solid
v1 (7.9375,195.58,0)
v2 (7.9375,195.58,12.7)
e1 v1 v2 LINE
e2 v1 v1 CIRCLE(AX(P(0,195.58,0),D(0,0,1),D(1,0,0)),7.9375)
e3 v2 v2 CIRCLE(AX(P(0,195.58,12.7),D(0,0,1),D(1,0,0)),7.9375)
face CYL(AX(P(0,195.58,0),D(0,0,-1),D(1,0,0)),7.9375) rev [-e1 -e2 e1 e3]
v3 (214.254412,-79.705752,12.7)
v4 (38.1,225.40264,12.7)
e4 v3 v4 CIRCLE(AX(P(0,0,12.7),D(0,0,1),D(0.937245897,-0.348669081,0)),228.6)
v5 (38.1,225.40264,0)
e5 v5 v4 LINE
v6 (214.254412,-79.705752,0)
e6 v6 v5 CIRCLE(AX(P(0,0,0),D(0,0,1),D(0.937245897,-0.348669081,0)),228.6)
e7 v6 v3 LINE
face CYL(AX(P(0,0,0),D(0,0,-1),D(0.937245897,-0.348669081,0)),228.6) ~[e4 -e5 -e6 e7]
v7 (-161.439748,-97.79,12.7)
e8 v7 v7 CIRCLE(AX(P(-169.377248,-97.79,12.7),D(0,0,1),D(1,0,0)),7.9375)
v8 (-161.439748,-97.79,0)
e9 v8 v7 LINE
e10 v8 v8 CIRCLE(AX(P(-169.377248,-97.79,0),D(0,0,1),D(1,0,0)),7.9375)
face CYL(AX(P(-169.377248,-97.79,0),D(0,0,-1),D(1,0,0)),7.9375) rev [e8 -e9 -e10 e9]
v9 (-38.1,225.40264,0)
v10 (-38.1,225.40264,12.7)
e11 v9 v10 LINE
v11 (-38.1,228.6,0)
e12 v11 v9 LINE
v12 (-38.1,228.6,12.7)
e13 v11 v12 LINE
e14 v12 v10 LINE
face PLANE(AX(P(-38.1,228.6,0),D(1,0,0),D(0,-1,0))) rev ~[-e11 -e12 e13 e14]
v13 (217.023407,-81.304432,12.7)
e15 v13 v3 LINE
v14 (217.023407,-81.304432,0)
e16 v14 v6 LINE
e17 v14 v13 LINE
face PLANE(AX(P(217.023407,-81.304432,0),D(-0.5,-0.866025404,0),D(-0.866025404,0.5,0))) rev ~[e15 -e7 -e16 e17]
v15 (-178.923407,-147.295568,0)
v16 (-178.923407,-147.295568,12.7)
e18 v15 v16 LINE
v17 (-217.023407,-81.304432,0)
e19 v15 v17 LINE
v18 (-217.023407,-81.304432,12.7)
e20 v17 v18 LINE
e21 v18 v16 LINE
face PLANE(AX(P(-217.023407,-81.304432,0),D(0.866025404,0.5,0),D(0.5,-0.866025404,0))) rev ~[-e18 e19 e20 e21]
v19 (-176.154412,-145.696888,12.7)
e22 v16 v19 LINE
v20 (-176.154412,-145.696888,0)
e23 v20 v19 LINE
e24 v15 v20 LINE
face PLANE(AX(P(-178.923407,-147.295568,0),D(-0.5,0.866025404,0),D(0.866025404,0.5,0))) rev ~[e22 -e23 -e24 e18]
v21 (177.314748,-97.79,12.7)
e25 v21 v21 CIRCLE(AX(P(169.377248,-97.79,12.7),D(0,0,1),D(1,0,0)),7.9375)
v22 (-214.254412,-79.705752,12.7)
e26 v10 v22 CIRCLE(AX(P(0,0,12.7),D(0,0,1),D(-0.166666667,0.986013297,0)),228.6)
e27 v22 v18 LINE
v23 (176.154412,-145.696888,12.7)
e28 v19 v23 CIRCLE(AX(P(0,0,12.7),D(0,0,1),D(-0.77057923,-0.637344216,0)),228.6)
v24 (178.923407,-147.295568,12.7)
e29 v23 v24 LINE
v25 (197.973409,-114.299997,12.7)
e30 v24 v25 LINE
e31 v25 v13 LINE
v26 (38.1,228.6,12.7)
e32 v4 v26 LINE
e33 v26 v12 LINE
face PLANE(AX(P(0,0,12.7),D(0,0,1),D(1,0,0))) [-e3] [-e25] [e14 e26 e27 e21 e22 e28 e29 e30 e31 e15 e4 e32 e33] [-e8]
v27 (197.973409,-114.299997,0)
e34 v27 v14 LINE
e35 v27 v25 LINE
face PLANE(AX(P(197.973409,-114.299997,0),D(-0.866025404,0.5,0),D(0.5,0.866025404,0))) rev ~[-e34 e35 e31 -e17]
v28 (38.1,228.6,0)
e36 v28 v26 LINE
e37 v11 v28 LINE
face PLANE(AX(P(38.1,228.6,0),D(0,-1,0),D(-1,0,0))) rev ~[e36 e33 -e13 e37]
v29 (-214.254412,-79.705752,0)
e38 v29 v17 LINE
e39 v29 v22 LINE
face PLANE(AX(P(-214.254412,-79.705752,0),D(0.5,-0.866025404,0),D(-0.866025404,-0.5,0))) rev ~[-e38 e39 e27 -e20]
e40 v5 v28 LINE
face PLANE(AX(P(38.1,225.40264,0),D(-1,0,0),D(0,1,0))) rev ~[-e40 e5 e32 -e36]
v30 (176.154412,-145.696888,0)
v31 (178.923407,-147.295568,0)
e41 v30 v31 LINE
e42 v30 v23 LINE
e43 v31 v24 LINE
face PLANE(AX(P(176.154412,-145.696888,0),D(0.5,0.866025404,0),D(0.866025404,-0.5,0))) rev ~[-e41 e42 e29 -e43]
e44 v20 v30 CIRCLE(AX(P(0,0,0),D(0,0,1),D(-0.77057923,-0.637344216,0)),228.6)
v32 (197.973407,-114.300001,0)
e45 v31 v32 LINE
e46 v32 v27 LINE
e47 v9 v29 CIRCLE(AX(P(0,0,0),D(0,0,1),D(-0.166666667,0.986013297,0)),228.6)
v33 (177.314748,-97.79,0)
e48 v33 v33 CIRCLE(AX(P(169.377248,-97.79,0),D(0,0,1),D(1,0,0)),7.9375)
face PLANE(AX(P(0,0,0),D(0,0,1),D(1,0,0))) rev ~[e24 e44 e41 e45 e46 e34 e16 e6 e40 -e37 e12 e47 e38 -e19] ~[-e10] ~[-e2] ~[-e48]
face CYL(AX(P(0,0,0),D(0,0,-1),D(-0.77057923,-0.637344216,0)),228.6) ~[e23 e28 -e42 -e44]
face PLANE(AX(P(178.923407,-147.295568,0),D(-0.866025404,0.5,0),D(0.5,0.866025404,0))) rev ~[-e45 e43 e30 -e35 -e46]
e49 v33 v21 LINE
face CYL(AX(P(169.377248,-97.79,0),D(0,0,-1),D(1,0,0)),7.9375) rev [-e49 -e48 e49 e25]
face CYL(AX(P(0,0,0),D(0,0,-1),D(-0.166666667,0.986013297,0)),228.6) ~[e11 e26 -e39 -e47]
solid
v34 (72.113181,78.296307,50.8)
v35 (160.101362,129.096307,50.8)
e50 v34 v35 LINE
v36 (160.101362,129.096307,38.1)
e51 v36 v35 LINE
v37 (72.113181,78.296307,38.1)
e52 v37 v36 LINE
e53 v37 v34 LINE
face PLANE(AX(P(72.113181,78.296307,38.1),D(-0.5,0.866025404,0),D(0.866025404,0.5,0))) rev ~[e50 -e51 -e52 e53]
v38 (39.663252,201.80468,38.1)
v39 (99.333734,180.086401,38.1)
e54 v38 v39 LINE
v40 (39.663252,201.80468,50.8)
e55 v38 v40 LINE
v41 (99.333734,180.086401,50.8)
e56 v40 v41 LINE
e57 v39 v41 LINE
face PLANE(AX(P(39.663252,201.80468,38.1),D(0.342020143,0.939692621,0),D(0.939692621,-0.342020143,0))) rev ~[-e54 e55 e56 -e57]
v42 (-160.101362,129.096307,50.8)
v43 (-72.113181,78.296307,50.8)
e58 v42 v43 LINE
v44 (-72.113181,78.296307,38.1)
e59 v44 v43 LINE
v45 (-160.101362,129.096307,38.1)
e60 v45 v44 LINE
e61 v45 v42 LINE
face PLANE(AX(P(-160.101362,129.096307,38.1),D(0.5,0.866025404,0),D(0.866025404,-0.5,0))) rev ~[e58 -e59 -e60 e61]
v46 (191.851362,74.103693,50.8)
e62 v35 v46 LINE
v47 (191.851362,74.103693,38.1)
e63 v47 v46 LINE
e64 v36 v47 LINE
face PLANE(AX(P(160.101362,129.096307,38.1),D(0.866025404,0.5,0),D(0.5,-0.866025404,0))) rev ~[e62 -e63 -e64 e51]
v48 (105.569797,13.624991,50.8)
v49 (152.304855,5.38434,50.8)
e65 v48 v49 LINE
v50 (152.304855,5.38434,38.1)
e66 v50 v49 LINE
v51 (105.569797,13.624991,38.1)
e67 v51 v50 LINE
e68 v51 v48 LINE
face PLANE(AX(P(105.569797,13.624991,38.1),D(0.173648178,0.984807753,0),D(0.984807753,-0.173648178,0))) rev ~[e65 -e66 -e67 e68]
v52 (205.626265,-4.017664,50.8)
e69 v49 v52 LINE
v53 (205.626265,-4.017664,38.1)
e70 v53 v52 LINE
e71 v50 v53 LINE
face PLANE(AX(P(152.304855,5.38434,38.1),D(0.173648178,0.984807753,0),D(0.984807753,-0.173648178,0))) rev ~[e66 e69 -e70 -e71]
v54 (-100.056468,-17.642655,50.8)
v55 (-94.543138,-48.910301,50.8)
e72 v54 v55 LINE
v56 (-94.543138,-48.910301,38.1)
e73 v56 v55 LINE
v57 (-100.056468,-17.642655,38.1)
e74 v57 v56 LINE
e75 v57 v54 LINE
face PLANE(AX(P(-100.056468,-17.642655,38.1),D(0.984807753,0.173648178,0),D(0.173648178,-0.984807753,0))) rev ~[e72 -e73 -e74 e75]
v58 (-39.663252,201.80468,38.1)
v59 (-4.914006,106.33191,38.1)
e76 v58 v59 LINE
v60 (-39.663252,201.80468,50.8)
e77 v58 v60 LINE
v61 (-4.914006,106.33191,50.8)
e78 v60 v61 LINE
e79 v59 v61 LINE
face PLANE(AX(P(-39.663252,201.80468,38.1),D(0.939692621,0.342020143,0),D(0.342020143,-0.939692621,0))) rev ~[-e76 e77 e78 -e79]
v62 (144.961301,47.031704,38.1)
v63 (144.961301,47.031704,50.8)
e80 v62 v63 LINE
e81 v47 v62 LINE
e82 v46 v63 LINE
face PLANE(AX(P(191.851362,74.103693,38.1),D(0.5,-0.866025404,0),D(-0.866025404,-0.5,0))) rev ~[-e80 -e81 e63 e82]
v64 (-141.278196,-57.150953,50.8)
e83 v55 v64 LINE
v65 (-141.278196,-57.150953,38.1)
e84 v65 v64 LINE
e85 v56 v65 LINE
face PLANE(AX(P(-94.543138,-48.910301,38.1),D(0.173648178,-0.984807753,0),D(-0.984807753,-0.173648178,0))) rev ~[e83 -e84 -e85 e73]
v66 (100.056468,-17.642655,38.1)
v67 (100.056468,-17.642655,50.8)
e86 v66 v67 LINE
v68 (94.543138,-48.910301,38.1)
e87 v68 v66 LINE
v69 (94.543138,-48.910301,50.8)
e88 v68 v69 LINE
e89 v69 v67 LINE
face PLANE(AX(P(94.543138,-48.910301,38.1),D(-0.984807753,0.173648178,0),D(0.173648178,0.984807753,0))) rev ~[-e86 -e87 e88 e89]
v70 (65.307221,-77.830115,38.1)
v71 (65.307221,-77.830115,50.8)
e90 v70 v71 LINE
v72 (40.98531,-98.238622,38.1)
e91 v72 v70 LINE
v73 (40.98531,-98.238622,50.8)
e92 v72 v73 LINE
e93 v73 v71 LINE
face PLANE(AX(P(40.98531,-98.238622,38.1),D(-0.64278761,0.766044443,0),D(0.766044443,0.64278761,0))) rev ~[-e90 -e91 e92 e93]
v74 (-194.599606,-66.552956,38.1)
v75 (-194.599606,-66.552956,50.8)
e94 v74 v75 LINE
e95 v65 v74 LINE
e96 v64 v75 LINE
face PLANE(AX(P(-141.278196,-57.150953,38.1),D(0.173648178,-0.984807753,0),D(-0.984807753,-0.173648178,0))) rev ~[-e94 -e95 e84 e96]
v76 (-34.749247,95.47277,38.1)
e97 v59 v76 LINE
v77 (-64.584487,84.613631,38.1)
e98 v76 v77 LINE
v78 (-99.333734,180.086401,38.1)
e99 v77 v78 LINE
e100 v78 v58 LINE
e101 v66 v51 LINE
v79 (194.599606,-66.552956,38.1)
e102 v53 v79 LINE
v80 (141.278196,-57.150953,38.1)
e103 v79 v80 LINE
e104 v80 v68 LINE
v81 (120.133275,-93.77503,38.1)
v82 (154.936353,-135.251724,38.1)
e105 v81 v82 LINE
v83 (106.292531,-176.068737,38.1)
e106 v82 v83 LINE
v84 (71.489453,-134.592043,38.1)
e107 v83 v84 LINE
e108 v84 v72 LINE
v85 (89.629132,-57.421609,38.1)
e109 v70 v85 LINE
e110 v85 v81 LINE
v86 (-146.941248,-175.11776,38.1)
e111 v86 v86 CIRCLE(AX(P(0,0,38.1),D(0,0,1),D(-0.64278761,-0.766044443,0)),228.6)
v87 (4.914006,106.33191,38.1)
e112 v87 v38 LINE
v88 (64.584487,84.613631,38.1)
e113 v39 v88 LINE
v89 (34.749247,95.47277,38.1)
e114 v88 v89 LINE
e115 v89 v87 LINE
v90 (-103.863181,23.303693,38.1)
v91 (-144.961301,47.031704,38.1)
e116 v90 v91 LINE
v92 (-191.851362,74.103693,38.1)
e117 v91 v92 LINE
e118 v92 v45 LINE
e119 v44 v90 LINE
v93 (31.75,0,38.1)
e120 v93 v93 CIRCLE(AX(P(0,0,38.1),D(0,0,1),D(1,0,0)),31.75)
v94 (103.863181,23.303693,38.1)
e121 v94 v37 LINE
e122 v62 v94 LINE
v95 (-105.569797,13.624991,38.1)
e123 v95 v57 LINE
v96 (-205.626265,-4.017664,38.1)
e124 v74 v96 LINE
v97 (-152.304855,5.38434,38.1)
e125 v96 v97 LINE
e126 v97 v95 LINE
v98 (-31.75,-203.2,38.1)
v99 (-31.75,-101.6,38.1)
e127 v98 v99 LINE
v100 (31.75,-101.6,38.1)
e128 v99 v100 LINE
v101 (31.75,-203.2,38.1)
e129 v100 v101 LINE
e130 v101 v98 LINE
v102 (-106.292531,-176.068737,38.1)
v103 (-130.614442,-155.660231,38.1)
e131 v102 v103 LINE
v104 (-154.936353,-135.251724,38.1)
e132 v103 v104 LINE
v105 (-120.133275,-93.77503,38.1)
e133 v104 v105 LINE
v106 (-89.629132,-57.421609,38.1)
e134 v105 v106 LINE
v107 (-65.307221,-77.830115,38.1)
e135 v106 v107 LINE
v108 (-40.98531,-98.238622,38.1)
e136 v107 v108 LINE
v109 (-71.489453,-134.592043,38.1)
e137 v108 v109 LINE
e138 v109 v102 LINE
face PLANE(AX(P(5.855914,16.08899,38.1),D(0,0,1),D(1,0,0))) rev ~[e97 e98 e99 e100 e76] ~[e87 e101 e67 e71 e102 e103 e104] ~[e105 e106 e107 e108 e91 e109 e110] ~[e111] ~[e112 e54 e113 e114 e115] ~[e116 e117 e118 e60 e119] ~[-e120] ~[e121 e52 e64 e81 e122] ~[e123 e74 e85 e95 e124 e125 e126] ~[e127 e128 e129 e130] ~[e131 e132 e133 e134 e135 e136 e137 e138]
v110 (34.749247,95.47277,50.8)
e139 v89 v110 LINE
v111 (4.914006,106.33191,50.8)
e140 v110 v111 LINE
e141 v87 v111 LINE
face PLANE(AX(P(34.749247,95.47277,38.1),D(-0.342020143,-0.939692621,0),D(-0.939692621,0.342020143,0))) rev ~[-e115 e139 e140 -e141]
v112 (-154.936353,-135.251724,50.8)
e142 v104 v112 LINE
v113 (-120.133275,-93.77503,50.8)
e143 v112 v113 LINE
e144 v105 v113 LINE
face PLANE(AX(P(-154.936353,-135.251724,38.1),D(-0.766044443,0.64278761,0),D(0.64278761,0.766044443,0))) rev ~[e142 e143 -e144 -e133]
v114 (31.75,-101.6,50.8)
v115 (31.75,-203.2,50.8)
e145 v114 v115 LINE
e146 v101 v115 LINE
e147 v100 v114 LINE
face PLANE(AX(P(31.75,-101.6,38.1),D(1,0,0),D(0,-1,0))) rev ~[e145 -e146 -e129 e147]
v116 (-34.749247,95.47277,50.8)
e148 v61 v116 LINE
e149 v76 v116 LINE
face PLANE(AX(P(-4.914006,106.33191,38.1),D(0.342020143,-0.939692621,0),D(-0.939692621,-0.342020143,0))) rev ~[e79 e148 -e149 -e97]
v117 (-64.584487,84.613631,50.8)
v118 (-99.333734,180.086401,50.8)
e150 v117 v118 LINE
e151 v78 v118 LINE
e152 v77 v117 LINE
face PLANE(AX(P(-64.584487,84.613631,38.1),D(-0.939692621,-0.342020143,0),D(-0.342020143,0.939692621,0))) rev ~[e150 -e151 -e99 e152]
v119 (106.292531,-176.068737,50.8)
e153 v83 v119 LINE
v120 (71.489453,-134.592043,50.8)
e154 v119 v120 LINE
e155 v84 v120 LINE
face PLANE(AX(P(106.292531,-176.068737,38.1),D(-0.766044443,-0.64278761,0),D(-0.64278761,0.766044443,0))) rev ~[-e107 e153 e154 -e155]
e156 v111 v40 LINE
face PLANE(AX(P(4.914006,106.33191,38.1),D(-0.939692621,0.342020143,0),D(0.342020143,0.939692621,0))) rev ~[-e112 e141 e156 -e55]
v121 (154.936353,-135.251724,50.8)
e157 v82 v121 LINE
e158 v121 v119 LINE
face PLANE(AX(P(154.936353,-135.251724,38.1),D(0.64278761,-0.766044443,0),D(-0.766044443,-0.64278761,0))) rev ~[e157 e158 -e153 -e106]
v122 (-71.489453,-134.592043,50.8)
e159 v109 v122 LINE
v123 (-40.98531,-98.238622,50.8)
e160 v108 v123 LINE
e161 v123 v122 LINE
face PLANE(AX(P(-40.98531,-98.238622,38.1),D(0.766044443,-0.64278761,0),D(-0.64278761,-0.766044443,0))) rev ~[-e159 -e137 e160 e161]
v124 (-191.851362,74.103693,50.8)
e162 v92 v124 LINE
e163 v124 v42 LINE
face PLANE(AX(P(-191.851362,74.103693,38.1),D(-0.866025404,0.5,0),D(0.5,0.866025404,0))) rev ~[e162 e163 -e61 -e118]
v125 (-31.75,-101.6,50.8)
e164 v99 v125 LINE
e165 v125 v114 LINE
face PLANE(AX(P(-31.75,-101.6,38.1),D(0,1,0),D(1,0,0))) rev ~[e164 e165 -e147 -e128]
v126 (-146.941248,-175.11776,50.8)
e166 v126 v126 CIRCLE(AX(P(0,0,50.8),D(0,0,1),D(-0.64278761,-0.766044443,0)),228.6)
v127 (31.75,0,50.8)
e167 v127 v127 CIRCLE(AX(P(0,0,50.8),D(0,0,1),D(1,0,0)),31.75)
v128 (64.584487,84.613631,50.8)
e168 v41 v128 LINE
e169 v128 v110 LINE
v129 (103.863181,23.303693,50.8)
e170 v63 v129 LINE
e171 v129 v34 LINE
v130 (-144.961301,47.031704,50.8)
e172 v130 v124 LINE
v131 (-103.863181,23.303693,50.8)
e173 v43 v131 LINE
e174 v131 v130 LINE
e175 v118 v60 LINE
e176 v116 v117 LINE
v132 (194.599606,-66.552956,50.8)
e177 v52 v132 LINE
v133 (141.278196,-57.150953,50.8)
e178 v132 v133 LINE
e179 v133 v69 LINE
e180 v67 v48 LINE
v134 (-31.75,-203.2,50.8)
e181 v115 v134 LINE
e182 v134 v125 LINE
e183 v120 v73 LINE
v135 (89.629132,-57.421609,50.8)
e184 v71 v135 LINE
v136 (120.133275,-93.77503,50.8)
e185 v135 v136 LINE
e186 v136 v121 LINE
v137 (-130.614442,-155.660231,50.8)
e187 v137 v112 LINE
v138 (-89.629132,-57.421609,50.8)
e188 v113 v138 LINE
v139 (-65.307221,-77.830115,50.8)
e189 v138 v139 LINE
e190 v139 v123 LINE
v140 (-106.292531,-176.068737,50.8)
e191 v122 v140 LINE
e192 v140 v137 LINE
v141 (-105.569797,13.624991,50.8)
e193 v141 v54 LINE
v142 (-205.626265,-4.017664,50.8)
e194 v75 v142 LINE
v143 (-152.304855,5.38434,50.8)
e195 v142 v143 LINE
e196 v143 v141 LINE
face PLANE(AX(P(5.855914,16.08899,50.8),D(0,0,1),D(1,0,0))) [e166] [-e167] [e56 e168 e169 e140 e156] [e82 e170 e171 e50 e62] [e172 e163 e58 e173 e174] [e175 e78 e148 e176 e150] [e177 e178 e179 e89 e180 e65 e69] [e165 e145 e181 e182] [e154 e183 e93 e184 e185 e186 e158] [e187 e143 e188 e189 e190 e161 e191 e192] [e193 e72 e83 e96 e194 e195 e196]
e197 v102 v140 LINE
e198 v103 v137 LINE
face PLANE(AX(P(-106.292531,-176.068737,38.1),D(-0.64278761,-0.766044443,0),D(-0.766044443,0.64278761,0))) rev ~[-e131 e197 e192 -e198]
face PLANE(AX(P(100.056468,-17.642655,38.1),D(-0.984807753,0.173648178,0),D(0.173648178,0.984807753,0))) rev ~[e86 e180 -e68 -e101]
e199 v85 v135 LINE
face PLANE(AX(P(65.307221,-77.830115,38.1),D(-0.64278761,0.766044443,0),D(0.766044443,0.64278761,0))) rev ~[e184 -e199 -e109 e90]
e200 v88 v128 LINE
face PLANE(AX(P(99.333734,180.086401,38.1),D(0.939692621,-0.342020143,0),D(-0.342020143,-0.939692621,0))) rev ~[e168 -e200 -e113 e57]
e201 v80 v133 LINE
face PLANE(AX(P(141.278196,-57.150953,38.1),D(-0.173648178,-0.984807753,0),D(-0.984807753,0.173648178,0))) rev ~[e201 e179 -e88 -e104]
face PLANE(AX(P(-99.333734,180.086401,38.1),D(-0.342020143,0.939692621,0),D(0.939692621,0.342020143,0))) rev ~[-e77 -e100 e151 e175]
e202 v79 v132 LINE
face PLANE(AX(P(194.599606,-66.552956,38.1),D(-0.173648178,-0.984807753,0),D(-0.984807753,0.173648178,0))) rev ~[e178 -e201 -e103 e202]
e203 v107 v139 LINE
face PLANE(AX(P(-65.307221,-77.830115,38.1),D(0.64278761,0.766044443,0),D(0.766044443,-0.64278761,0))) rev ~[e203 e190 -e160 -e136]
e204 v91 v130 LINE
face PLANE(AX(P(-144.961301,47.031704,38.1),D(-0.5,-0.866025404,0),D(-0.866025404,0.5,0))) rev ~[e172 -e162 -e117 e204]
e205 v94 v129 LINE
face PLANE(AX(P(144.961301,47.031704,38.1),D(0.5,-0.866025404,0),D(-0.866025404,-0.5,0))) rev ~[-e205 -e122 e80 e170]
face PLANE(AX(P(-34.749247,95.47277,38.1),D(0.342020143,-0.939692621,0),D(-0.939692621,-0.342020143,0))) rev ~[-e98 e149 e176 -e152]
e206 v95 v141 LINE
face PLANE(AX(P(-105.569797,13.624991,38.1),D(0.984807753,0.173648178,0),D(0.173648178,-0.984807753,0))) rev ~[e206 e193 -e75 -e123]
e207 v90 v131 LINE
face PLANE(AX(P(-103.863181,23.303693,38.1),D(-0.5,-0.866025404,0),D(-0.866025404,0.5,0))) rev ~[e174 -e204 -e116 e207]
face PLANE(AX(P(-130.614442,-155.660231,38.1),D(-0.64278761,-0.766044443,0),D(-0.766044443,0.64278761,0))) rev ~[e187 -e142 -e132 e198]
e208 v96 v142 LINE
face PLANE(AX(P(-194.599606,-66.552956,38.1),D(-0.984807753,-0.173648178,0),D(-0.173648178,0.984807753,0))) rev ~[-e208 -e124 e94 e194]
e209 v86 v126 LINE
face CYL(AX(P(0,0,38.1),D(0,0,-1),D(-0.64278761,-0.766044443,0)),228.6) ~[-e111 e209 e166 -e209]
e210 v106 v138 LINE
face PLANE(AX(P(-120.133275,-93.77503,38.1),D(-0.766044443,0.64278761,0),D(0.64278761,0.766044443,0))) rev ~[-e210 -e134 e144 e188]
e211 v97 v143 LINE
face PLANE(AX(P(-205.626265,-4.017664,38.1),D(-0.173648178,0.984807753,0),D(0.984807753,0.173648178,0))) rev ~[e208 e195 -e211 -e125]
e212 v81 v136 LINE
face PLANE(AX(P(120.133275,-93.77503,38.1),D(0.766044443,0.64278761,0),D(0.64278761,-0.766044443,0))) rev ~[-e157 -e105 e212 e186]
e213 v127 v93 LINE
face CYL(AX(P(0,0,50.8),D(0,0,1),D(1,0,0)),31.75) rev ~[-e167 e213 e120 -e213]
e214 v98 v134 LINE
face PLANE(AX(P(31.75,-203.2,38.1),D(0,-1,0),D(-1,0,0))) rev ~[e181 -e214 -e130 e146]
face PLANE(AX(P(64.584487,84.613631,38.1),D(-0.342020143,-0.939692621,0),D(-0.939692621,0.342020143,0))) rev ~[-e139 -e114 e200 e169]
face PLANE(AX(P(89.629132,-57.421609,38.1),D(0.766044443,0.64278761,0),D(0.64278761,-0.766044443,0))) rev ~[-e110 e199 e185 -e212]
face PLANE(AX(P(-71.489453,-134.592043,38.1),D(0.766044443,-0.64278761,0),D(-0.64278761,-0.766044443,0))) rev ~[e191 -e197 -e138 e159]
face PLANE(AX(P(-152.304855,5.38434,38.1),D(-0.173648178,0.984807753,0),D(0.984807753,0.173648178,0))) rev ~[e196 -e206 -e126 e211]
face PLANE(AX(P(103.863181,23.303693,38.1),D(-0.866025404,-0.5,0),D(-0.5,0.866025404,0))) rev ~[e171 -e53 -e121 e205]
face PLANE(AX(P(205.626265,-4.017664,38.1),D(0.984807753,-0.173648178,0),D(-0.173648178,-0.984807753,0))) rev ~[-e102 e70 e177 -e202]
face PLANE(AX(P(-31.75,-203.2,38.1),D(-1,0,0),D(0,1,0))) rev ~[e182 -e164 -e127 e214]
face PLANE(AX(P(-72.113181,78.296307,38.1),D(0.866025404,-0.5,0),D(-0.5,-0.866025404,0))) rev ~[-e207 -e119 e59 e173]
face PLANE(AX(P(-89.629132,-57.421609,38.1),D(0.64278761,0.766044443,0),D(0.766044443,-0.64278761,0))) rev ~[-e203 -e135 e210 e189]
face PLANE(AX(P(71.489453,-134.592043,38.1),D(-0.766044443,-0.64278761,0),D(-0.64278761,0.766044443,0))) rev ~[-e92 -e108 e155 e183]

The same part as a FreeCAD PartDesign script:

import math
import FreeCAD as App
import Part
import Sketcher
Q = App.Units.Quantity


def add_polygon(sketch, points):
    """Adds a closed chain of lines whose ends are joined by coincident constraints."""
    first, n = sketch.GeometryCount, len(points)
    for a, b in zip(points, points[1:] + points[:1]):
        sketch.addGeometry(Part.LineSegment(App.Vector(*a, 0), App.Vector(*b, 0)), False)
    for i in range(n):
        sketch.addConstraint(Sketcher.Constraint("Coincident", first + i, 2, first + (i + 1) % n, 1))

doc = App.newDocument("Part")
body = doc.addObject("PartDesign::Body", "Body")

# Sketch on XY plane
sketch1 = body.newObject("Sketcher::SketchObject", "Sketch")
sketch1.AttachmentSupport = (doc.getObject("XY_Plane"), [""])
sketch1.MapMode = "FlatFace"
sketch1.addGeometry([
    Part.ArcOfCircle(Part.Circle(App.Vector(0, 0, 0), App.Vector(0, 0, 1), 228.6), math.radians(100), math.radians(200)),  # 0
    Part.LineSegment(App.Vector(-214.3, -79.7, 0), App.Vector(-217, -81.3, 0)),  # 1
    Part.LineSegment(App.Vector(-217, -81.3, 0), App.Vector(-178.9, -147.3, 0)),  # 2
    Part.LineSegment(App.Vector(-178.9, -147.3, 0), App.Vector(-176.2, -145.7, 0)),  # 3
    Part.ArcOfCircle(Part.Circle(App.Vector(0, 0, 0), App.Vector(0, 0, 1), 228.6), math.radians(-140), math.radians(-40)),  # 4
    Part.LineSegment(App.Vector(176.2, -145.7, 0), App.Vector(178.9, -147.3, 0)),  # 5
    Part.LineSegment(App.Vector(178.9, -147.3, 0), App.Vector(198, -114.3, 0)),  # 6
    Part.LineSegment(App.Vector(198, -114.3, 0), App.Vector(217, -81.3, 0)),  # 7
    Part.LineSegment(App.Vector(217, -81.3, 0), App.Vector(214.3, -79.7, 0)),  # 8
    Part.ArcOfCircle(Part.Circle(App.Vector(0, 0, 0), App.Vector(0, 0, 1), 228.6), math.radians(-20), math.radians(80)),  # 9
    Part.LineSegment(App.Vector(38.1, 225.4, 0), App.Vector(38.1, 228.6, 0)),  # 10
    Part.LineSegment(App.Vector(38.1, 228.6, 0), App.Vector(-38.1, 228.6, 0)),  # 11
    Part.LineSegment(App.Vector(-38.1, 228.6, 0), App.Vector(-38.1, 225.4, 0)),  # 12
    Part.Circle(App.Vector(-169.4, -97.8, 0), App.Vector(0, 0, 1), 7.9),  # 13
    Part.Circle(App.Vector(169.4, -97.8, 0), App.Vector(0, 0, 1), 7.9),  # 14
    Part.Circle(App.Vector(0, 195.6, 0), App.Vector(0, 0, 1), 7.9),  # 15
], False)
sketch1.addConstraint([
    Sketcher.Constraint("Coincident", 0, 2, 1, 1),
    Sketcher.Constraint("Coincident", 1, 2, 2, 1),
    Sketcher.Constraint("Coincident", 2, 2, 3, 1),
    Sketcher.Constraint("Coincident", 3, 2, 4, 1),
    Sketcher.Constraint("Coincident", 4, 2, 5, 1),
    Sketcher.Constraint("Coincident", 5, 2, 6, 1),
    Sketcher.Constraint("Coincident", 6, 2, 7, 1),
    Sketcher.Constraint("Coincident", 7, 2, 8, 1),
    Sketcher.Constraint("Coincident", 8, 2, 9, 1),
    Sketcher.Constraint("Coincident", 9, 2, 10, 1),
    Sketcher.Constraint("Coincident", 10, 2, 11, 1),
    Sketcher.Constraint("Coincident", 11, 2, 12, 1),
    Sketcher.Constraint("Coincident", 12, 2, 0, 1),
    Sketcher.Constraint("Vertical", 10),
    Sketcher.Constraint("Horizontal", 11),
    Sketcher.Constraint("Vertical", 12),
    Sketcher.Constraint("Coincident", 0, 3, -1, 1),
    Sketcher.Constraint("Coincident", 4, 3, -1, 1),
    Sketcher.Constraint("Coincident", 9, 3, -1, 1),
    Sketcher.Constraint("Equal", 0, 4),
    Sketcher.Constraint("Equal", 4, 9),
    Sketcher.Constraint("Equal", 13, 14),
    Sketcher.Constraint("Equal", 14, 15),
    Sketcher.Constraint("Symmetric", 13, 3, 14, 3, -2),
    Sketcher.Constraint("Symmetric", 2, 2, 5, 2, -2),
    Sketcher.Constraint("Symmetric", 1, 2, 7, 2, -2),
    Sketcher.Constraint("PointOnObject", 15, 3, -2),
    Sketcher.Constraint("Perpendicular", 1, 2),
    Sketcher.Constraint("Perpendicular", 2, 3),
    Sketcher.Constraint("Perpendicular", 5, 6),
    Sketcher.Constraint("Parallel", 6, 7),
    Sketcher.Constraint("Perpendicular", 7, 8),
    Sketcher.Constraint("Horizontal", 9, 2, 12, 2),
    Sketcher.Constraint("Equal", 1, 3),
    Sketcher.Constraint("Radius", 0, Q("9 in")),
    Sketcher.Constraint("DistanceX", 11, 2, 11, 1, Q("3 in")),
    Sketcher.Constraint("Distance", 2, Q("3 in")),
    Sketcher.Constraint("Diameter", 13, Q("0.625 in")),
    Sketcher.Constraint("DistanceY", -1, 1, 10, 2, Q("9 in")),
    Sketcher.Constraint("Angle", 1, Q("-150 deg")),
    Sketcher.Constraint("Distance", 6, Q("1.5000001 in")),
    Sketcher.Constraint("DistanceY", -1, 1, 15, 3, Q("7.7 in")),
    Sketcher.Constraint("DistanceY", 6, 2, -1, 1, Q("4.4999999 in")),
    Sketcher.Constraint("DistanceY", 13, 3, -1, 1, Q("3.85 in")),
    Sketcher.Constraint("DistanceX", 13, 3, -1, 1, Q("169.377248 mm")),
])
pad1 = body.newObject("PartDesign::Pad", "Pad")
pad1.Profile = sketch1
pad1.Length = Q("0.5 in")

# Sketch on XY plane
sketch2 = body.newObject("Sketcher::SketchObject", "Sketch001")
sketch2.AttachmentSupport = (doc.getObject("XY_Plane"), [""])
sketch2.MapMode = "FlatFace"
sketch2.AttachmentOffset = App.Placement(App.Vector(0, 0, 0.5 * 25.4), App.Rotation())
sketch2.addGeometry([
    Part.ArcOfCircle(Part.Circle(App.Vector(0, 0, 0), App.Vector(0, 0, 1), 229), math.radians(-20), math.radians(80)),  # 0
    Part.ArcOfCircle(Part.Circle(App.Vector(0, 0, 0), App.Vector(0, 0, 1), 229), math.radians(80.41), math.radians(90)),  # 1
    Part.ArcOfCircle(Part.Circle(App.Vector(0, 0, 0), App.Vector(0, 0, 1), 229), math.radians(90), math.radians(99.59)),  # 2
    Part.ArcOfCircle(Part.Circle(App.Vector(0, 0, 0), App.Vector(0, 0, 1), 229), math.radians(100), math.radians(210)),  # 3
    Part.ArcOfCircle(Part.Circle(App.Vector(0, 0, 0), App.Vector(0, 0, 1), 229), math.radians(-150), math.radians(-140.41)),  # 4
    Part.ArcOfCircle(Part.Circle(App.Vector(0, 0, 0), App.Vector(0, 0, 1), 229), math.radians(-140), math.radians(-40)),  # 5
    Part.ArcOfCircle(Part.Circle(App.Vector(0, 0, 0), App.Vector(0, 0, 1), 229), math.radians(-39.59), math.radians(-30)),  # 6
    Part.ArcOfCircle(Part.Circle(App.Vector(0, 0, 0), App.Vector(0, 0, 1), 229), math.radians(-30), math.radians(-20.41)),  # 7
    Part.Circle(App.Vector(-169, -98, 0), App.Vector(0, 0, 1), 8),  # 8
    Part.Circle(App.Vector(169, -98, 0), App.Vector(0, 0, 1), 8),  # 9
    Part.Circle(App.Vector(0, 196, 0), App.Vector(0, 0, 1), 8),  # 10
], False)
sketch2.addConstraint([
    Sketcher.Constraint("Tangent", 0, 2, 1, 1),
    Sketcher.Constraint("Tangent", 1, 2, 2, 1),
    Sketcher.Constraint("Tangent", 2, 2, 3, 1),
    Sketcher.Constraint("Tangent", 3, 2, 4, 1),
    Sketcher.Constraint("Tangent", 4, 2, 5, 1),
    Sketcher.Constraint("Tangent", 5, 2, 6, 1),
    Sketcher.Constraint("Tangent", 6, 2, 7, 1),
    Sketcher.Constraint("Tangent", 7, 2, 0, 1),
    Sketcher.Constraint("Coincident", 0, 3, -1, 1),
    Sketcher.Constraint("Coincident", 2, 3, -1, 1),
    Sketcher.Constraint("Coincident", 4, 3, -1, 1),
    Sketcher.Constraint("Equal", 4, 5),
    Sketcher.Constraint("Equal", 8, 9),
    Sketcher.Constraint("Equal", 9, 10),
    Sketcher.Constraint("Symmetric", 8, 3, 9, 3, -2),
    Sketcher.Constraint("PointOnObject", 10, 3, -2),
    Sketcher.Constraint("PointOnObject", 1, 2, -2),
    Sketcher.Constraint("Horizontal", 0, 2, 2, 2),
    Sketcher.Constraint("Horizontal", 4, 2, 5, 2),
    Sketcher.Constraint("Radius", 0, Q("9 in")),
    Sketcher.Constraint("Diameter", 8, Q("0.625 in")),
    Sketcher.Constraint("DistanceX", 2, 2, 0, 2, Q("3 in")),
    Sketcher.Constraint("DistanceY", -1, 1, 10, 3, Q("7.7 in")),
    Sketcher.Constraint("DistanceY", 3, 2, -1, 1, Q("4.5 in")),
    Sketcher.Constraint("DistanceY", 6, 2, -1, 1, Q("4.5000001 in")),
    Sketcher.Constraint("DistanceX", 5, 2, 7, 2, Q("1.5 in")),
    Sketcher.Constraint("DistanceY", 8, 3, -1, 1, Q("3.85 in")),
    Sketcher.Constraint("DistanceX", 8, 3, -1, 1, Q("169.377248 mm")),
    Sketcher.Constraint("DistanceY", 7, 2, -1, 1, Q("79.705752 mm")),
])
pad2 = body.newObject("PartDesign::Pad", "Pad001")
pad2.Profile = sketch2
pad2.Length = Q("0.5 in")
pad2.Reversed = True
body2 = doc.addObject("PartDesign::Body", "Body001")

# Sketch on XY plane
sketch3 = body2.newObject("Sketcher::SketchObject", "Sketch002")
sketch3.AttachmentSupport = (doc.getObject("XY_Plane001"), [""])
sketch3.MapMode = "FlatFace"
sketch3.AttachmentOffset = App.Placement(App.Vector(0, 0, 1.5 * 25.4), App.Rotation())
sketch3.addGeometry(Part.Circle(App.Vector(0, 0, 0), App.Vector(0, 0, 1), 229), False)  # 0
add_polygon(sketch3, [(-131, -156), (-155, -135), (-120, -94), (-90, -57), (-65, -78), (-41, -98), (-71, -135), (-106, -176)])  # lines 1-8
add_polygon(sketch3, [(-141, -57), (-195, -67), (-206, -4), (-152, 5), (-106, 14), (-100, -18), (-95, -49)])  # lines 9-15
add_polygon(sketch3, [(-145, 47), (-192, 74), (-160, 129), (-72, 78), (-104, 23)])  # lines 16-20
add_polygon(sketch3, [(-99, 180), (-40, 202), (-5, 106), (-35, 95), (-65, 85)])  # lines 21-25
add_polygon(sketch3, [(40, 202), (99, 180), (65, 85), (35, 95), (5, 106)])  # lines 26-30
add_polygon(sketch3, [(160, 129), (192, 74), (145, 47), (104, 23), (72, 78)])  # lines 31-35
add_polygon(sketch3, [(152, 5), (206, -4), (195, -67), (141, -57), (95, -49), (100, -18), (106, 14)])  # lines 36-42
add_polygon(sketch3, [(120, -94), (155, -135), (106, -176), (71, -135), (41, -98), (65, -78), (90, -57)])  # lines 43-49
add_polygon(sketch3, [(32, -203), (-32, -203), (-32, -102), (32, -102)])  # lines 50-53
sketch3.addConstraint([
    Sketcher.Constraint("Horizontal", 50),
    Sketcher.Constraint("Vertical", 51),
    Sketcher.Constraint("Horizontal", 52),
    Sketcher.Constraint("Vertical", 53),
    Sketcher.Constraint("Coincident", 0, 3, -1, 1),
    Sketcher.Constraint("Symmetric", 25, 2, 26, 2, -2),
    Sketcher.Constraint("Symmetric", 24, 2, 27, 2, -2),
    Sketcher.Constraint("Symmetric", 23, 2, 28, 2, -2),
    Sketcher.Constraint("Symmetric", 22, 2, 29, 2, -2),
    Sketcher.Constraint("Symmetric", 21, 2, 30, 2, -2),
    Sketcher.Constraint("Symmetric", 16, 2, 31, 2, -2),
    Sketcher.Constraint("Symmetric", 20, 2, 32, 2, -2),
    Sketcher.Constraint("Symmetric", 19, 2, 33, 2, -2),
    Sketcher.Constraint("Symmetric", 18, 2, 34, 2, -2),
    Sketcher.Constraint("Symmetric", 17, 2, 35, 2, -2),
    Sketcher.Constraint("Symmetric", 10, 2, 36, 2, -2),
    Sketcher.Constraint("Symmetric", 9, 2, 37, 2, -2),
    Sketcher.Constraint("Symmetric", 15, 2, 38, 2, -2),
    Sketcher.Constraint("Symmetric", 14, 2, 39, 2, -2),
    Sketcher.Constraint("Symmetric", 13, 2, 40, 2, -2),
    Sketcher.Constraint("Symmetric", 12, 2, 41, 2, -2),
    Sketcher.Constraint("Symmetric", 11, 2, 42, 2, -2),
    Sketcher.Constraint("Symmetric", 1, 2, 43, 2, -2),
    Sketcher.Constraint("Symmetric", 7, 2, 44, 2, -2),
    Sketcher.Constraint("Symmetric", 6, 2, 45, 2, -2),
    Sketcher.Constraint("Symmetric", 5, 2, 46, 2, -2),
    Sketcher.Constraint("Symmetric", 4, 2, 47, 2, -2),
    Sketcher.Constraint("Symmetric", 3, 2, 48, 2, -2),
    Sketcher.Constraint("Symmetric", 2, 2, 49, 2, -2),
    Sketcher.Constraint("Perpendicular", 1, 2),
    Sketcher.Constraint("Parallel", 2, 3),
    Sketcher.Constraint("Perpendicular", 3, 4),
    Sketcher.Constraint("Parallel", 4, 5),
    Sketcher.Constraint("Perpendicular", 5, 6),
    Sketcher.Constraint("Parallel", 6, 7),
    Sketcher.Constraint("Perpendicular", 7, 8),
    Sketcher.Constraint("Perpendicular", 9, 10),
    Sketcher.Constraint("Perpendicular", 10, 11),
    Sketcher.Constraint("Parallel", 11, 12),
    Sketcher.Constraint("Perpendicular", 12, 13),
    Sketcher.Constraint("Parallel", 13, 14),
    Sketcher.Constraint("Perpendicular", 14, 15),
    Sketcher.Constraint("Perpendicular", 16, 17),
    Sketcher.Constraint("Perpendicular", 17, 18),
    Sketcher.Constraint("Perpendicular", 18, 19),
    Sketcher.Constraint("Perpendicular", 19, 20),
    Sketcher.Constraint("Perpendicular", 21, 22),
    Sketcher.Constraint("Perpendicular", 22, 23),
    Sketcher.Constraint("Parallel", 23, 24),
    Sketcher.Constraint("Perpendicular", 24, 25),
    Sketcher.Constraint("Equal", 1, 4),
    Sketcher.Constraint("Equal", 4, 5),
    Sketcher.Constraint("Equal", 3, 6),
    Sketcher.Constraint("Equal", 7, 9),
    Sketcher.Constraint("Equal", 9, 11),
    Sketcher.Constraint("Equal", 6, 12),
    Sketcher.Constraint("Equal", 8, 13),
    Sketcher.Constraint("Equal", 13, 14),
    Sketcher.Constraint("Equal", 11, 16),
    Sketcher.Constraint("Equal", 10, 17),
    Sketcher.Constraint("Equal", 15, 20),
    Sketcher.Constraint("Equal", 19, 21),
    Sketcher.Constraint("Equal", 18, 22),
    Sketcher.Constraint("Equal", 14, 23),
    Sketcher.Constraint("Diameter", 0, Q("18 in")),
    Sketcher.Constraint("DistanceY", 51, 1, 51, 2, Q("4 in")),
    Sketcher.Constraint("Distance", 18, Q("4 in")),
    Sketcher.Constraint("DistanceX", 50, 2, 50, 1, Q("2.5 in")),
    Sketcher.Constraint("DistanceY", 50, 2, -1, 1, Q("8 in")),
    Sketcher.Constraint("Angle", 1, Q("140 deg")),
    Sketcher.Constraint("Angle", 9, Q("-170 deg")),
    Sketcher.Constraint("Angle", 16, Q("150 deg")),
    Sketcher.Constraint("Angle", 21, Q("20 deg")),
    Sketcher.Constraint("Distance", 10, Q("2.5 in")),
    Sketcher.Constraint("DistanceX", 50, 2, -1, 1, Q("1.25 in")),
    Sketcher.Constraint("DistanceX", 1, 2, 2, 2, Q("1.3701999 in")),
    Sketcher.Constraint("DistanceX", 33, 2, 37, 2, Q("3.5723002 in")),
    Sketcher.Constraint("DistanceY", 14, 2, -1, 1, Q("48.910301 mm")),
    Sketcher.Constraint("DistanceX", 20, 2, -1, 1, Q("144.961301 mm")),
    Sketcher.Constraint("DistanceY", -1, 1, 25, 2, Q("180.086401 mm")),
    Sketcher.Constraint("DistanceY", 3, 2, 12, 2, Q("71.0466 mm")),
    Sketcher.Constraint("DistanceX", 42, 2, 43, 2, Q("2.631498 mm")),
    Sketcher.Constraint("DistanceY", 13, 2, 16, 2, Q("91.746348 mm")),
    Sketcher.Constraint("DistanceX", 18, 2, 21, 2, Q("32.449929 mm")),
])
pad3 = body2.newObject("PartDesign::Pad", "Pad002")
pad3.Profile = sketch3
pad3.Length = Q("0.5 in")

# Sketch on XY plane
sketch4 = body2.newObject("Sketcher::SketchObject", "Sketch003")
sketch4.AttachmentSupport = (doc.getObject("XY_Plane001"), [""])
sketch4.MapMode = "FlatFace"
sketch4.AttachmentOffset = App.Placement(App.Vector(0, 0, 2 * 25.4), App.Rotation())
sketch4.addGeometry(Part.Circle(App.Vector(0, 0, 0), App.Vector(0, 0, 1), 32), False)
sketch4.addConstraint([
    Sketcher.Constraint("Coincident", 0, 3, -1, 1),
    Sketcher.Constraint("Diameter", 0, Q("2.5 in")),
])
pocket1 = body2.newObject("PartDesign::Pocket", "Pocket")
pocket1.Profile = sketch4
pocket1.Length = Q("1 in")

doc.recompute()
